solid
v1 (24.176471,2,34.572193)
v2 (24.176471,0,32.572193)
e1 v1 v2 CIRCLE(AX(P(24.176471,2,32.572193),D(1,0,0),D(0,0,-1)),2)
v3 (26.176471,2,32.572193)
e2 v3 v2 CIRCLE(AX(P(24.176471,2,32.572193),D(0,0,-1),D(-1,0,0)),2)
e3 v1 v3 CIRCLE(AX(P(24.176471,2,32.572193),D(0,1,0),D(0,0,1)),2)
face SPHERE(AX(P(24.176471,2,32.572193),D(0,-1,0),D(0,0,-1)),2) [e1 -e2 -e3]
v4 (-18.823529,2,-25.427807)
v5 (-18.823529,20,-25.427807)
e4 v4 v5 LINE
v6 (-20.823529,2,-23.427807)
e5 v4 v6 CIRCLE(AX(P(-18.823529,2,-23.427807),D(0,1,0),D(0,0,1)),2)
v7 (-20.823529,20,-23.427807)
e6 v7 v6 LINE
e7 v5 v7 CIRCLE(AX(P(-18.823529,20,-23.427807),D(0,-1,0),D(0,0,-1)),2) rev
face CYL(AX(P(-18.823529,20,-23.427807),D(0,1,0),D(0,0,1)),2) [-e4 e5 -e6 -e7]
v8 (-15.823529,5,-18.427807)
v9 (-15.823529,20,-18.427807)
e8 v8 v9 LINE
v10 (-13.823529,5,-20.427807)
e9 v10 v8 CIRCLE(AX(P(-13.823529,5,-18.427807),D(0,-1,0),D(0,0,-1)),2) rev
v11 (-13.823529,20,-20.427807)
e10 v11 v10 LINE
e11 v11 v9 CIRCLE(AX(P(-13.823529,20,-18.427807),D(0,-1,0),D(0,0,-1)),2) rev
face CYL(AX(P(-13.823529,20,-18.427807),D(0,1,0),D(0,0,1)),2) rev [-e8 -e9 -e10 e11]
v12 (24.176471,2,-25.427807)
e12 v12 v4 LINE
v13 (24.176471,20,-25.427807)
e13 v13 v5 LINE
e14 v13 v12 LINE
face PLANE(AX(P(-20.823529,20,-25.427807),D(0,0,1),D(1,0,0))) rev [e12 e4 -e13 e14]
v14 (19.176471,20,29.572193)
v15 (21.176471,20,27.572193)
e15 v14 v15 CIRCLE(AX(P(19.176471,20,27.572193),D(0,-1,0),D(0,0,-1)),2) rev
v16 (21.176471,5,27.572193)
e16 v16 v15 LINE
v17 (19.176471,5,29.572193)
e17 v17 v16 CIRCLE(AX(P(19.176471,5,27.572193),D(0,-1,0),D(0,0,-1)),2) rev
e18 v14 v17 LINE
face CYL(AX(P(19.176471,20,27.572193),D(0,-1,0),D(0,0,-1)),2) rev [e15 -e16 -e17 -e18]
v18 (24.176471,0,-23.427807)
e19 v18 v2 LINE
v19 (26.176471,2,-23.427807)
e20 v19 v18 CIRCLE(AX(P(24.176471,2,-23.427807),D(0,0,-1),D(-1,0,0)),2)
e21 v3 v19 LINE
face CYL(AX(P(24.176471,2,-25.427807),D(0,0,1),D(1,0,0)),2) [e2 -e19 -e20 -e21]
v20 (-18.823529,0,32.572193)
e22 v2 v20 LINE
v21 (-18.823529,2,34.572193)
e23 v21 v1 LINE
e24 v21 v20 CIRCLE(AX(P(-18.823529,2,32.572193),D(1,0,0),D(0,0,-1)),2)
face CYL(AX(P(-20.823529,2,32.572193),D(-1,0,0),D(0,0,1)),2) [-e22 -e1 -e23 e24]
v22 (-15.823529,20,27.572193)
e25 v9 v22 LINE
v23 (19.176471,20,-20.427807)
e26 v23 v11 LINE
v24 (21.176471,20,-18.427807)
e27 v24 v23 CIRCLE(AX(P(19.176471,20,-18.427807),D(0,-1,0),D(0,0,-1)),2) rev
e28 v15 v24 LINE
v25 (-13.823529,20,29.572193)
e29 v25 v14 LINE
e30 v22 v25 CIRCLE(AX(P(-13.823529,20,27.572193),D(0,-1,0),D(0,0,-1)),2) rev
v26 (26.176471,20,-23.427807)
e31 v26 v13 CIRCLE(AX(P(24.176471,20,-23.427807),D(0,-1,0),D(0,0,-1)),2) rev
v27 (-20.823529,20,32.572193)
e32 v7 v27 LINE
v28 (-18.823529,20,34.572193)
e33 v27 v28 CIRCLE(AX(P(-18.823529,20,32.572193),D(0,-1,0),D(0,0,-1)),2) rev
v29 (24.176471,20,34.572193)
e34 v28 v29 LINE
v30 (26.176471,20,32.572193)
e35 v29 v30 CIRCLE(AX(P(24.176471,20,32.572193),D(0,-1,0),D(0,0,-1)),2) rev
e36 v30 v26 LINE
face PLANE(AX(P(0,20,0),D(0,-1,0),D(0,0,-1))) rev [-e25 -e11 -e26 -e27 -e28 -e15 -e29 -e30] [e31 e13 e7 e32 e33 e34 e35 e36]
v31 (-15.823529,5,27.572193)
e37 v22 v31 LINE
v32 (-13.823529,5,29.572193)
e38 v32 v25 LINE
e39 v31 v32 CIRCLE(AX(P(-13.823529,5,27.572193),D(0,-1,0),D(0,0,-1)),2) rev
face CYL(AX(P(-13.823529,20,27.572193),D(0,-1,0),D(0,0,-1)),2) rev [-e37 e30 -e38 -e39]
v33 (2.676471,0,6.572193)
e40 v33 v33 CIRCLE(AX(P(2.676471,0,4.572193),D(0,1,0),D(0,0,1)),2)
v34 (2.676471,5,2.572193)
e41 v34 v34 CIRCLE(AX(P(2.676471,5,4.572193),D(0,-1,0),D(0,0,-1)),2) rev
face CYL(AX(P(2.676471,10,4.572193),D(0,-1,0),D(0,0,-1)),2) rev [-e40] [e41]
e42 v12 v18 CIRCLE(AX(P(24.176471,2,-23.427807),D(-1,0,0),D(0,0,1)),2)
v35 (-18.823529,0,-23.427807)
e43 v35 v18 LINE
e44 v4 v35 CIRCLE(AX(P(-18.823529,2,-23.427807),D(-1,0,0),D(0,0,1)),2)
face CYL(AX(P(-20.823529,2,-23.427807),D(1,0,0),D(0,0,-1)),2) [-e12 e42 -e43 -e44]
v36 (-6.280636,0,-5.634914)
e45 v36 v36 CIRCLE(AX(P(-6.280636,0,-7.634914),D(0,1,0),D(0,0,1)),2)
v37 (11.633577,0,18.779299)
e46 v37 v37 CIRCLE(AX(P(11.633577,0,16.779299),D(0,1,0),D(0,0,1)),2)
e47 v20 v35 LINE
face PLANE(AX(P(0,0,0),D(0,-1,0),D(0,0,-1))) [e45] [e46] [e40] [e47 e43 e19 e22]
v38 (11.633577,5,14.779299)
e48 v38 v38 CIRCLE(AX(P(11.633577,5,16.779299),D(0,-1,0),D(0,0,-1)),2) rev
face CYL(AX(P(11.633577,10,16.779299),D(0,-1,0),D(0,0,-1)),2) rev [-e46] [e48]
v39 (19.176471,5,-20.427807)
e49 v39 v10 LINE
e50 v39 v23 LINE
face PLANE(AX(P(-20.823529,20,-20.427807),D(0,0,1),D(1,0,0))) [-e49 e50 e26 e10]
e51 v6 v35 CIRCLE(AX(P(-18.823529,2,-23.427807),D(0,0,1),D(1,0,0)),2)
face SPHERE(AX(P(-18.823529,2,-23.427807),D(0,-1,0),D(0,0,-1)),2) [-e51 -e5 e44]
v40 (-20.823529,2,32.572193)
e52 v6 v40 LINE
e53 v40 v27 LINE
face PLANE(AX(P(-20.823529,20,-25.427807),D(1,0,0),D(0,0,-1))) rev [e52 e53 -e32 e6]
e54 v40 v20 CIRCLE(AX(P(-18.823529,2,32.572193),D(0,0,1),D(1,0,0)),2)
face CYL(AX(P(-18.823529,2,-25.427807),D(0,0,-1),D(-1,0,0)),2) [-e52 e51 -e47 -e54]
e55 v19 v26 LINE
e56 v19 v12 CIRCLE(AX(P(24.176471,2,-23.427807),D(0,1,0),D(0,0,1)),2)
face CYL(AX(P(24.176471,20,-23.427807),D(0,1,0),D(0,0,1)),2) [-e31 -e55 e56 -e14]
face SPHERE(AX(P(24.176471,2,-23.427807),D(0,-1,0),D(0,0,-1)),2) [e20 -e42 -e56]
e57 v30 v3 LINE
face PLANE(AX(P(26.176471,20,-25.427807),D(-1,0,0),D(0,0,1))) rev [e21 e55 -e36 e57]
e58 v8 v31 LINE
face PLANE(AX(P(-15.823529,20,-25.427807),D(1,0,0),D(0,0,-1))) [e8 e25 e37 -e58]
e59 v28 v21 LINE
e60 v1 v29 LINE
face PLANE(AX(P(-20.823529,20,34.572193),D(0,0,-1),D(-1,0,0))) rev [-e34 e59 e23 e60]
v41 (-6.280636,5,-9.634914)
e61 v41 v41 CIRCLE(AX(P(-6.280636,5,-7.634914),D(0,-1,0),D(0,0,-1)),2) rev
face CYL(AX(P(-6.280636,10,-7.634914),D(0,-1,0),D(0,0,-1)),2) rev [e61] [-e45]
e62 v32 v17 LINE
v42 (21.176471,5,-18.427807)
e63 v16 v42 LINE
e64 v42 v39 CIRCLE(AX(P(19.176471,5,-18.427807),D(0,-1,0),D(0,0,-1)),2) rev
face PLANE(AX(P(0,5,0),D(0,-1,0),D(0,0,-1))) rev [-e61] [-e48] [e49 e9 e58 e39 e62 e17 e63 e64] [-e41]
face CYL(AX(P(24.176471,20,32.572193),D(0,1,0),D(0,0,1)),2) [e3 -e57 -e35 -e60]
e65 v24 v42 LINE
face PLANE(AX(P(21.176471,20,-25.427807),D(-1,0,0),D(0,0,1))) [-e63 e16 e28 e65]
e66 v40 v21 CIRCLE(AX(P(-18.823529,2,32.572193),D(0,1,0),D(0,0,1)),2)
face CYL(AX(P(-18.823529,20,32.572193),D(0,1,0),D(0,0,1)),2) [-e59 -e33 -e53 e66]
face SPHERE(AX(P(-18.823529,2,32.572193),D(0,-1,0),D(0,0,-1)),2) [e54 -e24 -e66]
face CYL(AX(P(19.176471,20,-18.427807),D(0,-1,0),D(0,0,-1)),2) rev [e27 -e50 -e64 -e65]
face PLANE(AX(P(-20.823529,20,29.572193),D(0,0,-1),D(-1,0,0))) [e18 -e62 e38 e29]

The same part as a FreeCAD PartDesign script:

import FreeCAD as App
import Part
import Sketcher
from FreeCAD import Vector


def edges_at(feature, points):
    """Names of the edges that pass closest to the given points."""
    edges = feature.Shape.Edges
    near = lambda p: min(range(len(edges)), key=lambda i: edges[i].distToShape(Part.Vertex(*p))[0])
    return sorted({f"Edge{near(p) + 1}" for p in points})


def faces_at(feature, points):
    """Names of the faces that lie closest to the given points."""
    faces = feature.Shape.Faces
    near = lambda p: min(range(len(faces)), key=lambda i: faces[i].distToShape(Part.Vertex(*p))[0])
    return sorted({f"Face{near(p) + 1}" for p in points})


def add_polygon(sketch, points):
    """Adds a closed chain of lines whose ends are joined by coincident constraints."""
    first, n = sketch.GeometryCount, len(points)
    for a, b in zip(points, points[1:] + points[:1]):
        sketch.addGeometry(Part.LineSegment(App.Vector(*a, 0), App.Vector(*b, 0)), False)
    for i in range(n):
        sketch.addConstraint(Sketcher.Constraint("Coincident", first + i, 2, first + (i + 1) % n, 1))

doc = App.newDocument("Part")
body = doc.addObject("PartDesign::Body", "Body")

# Sketch on XZ plane
sketch1 = doc.addObject("Sketcher::SketchObject", "Sketch")
body.addObject(sketch1)
sketch1.AttachmentSupport = (doc.XZ_Plane, [""])
sketch1.MapMode = "FlatFace"
add_polygon(sketch1, [(-21, -25), (-21, 35), (26, 35), (26, -25)])  # lines 0-3
sketch1.addConstraint(Sketcher.Constraint("Vertical", 0))
sketch1.addConstraint(Sketcher.Constraint("Horizontal", 1))
sketch1.addConstraint(Sketcher.Constraint("Vertical", 2))
sketch1.addConstraint(Sketcher.Constraint("Horizontal", 3))
sketch1.addConstraint(Sketcher.Constraint("DistanceX", 1, 1, 1, 2, 47.0))
sketch1.addConstraint(Sketcher.Constraint("DistanceY", 0, 1, 0, 2, 60.0))
sketch1.addConstraint(Sketcher.Constraint("DistanceX", 0, 2, -1, 1, 20.823529))
sketch1.addConstraint(Sketcher.Constraint("DistanceY", -1, 1, 0, 2, 34.572193))
pad1 = doc.addObject("PartDesign::Pad", "Pad")
body.addObject(pad1)
pad1.Profile = sketch1
pad1.Length = 20
pad1.Reversed = True
doc.recompute()

thickness = doc.addObject("PartDesign::Thickness", "Thickness")
body.addObject(thickness)
thickness.Base = (pad1, faces_at(pad1, [(2.676, 20, 4.572)]))
thickness.Value = 5
thickness.Reversed = True
thickness.Join = "Intersection"
doc.recompute()

fillet = doc.addObject("PartDesign::Fillet", "Fillet")
body.addObject(fillet)
fillet.Base = (thickness, edges_at(thickness, [(21.176, 12.5, 29.572)]))
fillet.Radius = 2
doc.recompute()

fillet2 = doc.addObject("PartDesign::Fillet", "Fillet001")
body.addObject(fillet2)
fillet2.Base = (fillet, edges_at(fillet, [(-15.824, 12.5, 29.572)]))
fillet2.Radius = 2
doc.recompute()

fillet3 = doc.addObject("PartDesign::Fillet", "Fillet002")
body.addObject(fillet3)
fillet3.Base = (fillet2, edges_at(fillet2, [(-15.824, 12.5, -20.428)]))
fillet3.Radius = 2
doc.recompute()

fillet4 = doc.addObject("PartDesign::Fillet", "Fillet003")
body.addObject(fillet4)
fillet4.Base = (fillet3, edges_at(fillet3, [(21.176, 12.5, -20.428)]))
fillet4.Radius = 2
doc.recompute()

fillet5 = doc.addObject("PartDesign::Fillet", "Fillet004")
body.addObject(fillet5)
fillet5.Base = (fillet4, edges_at(fillet4, [(-20.824, 10, 34.572)]))
fillet5.Radius = 2
doc.recompute()

fillet6 = doc.addObject("PartDesign::Fillet", "Fillet005")
body.addObject(fillet6)
fillet6.Base = (fillet5, edges_at(fillet5, [(26.176, 10, 34.572)]))
fillet6.Radius = 2
doc.recompute()

fillet7 = doc.addObject("PartDesign::Fillet", "Fillet006")
body.addObject(fillet7)
fillet7.Base = (fillet6, edges_at(fillet6, [(-20.824, 10, -25.428)]))
fillet7.Radius = 2
doc.recompute()

fillet8 = doc.addObject("PartDesign::Fillet", "Fillet007")
body.addObject(fillet8)
fillet8.Base = (fillet7, edges_at(fillet7, [(26.176, 10, -25.428)]))
fillet8.Radius = 2
doc.recompute()

fillet9 = doc.addObject("PartDesign::Fillet", "Fillet008")
body.addObject(fillet9)
fillet9.Base = (fillet8, edges_at(fillet8, [
    (2.676, 0, 34.572),
    (26.176, 0, 4.572),
    (-20.824, 0, 4.572),
    (2.676, 0, -25.428),
]))
fillet9.Radius = 2

# Sketch on XZ plane
sketch2 = doc.addObject("Sketcher::SketchObject", "Sketch001")
body.addObject(sketch2)
sketch2.AttachmentSupport = (doc.XZ_Plane, [""])
sketch2.MapMode = "FlatFace"
sketch2.addGeometry(Part.Circle(Vector(-6.3, -7.6, 0), Vector(0, 0, 1), 2), False)
sketch2.addGeometry(Part.Circle(Vector(2.7, 4.6, 0), Vector(0, 0, 1), 2), False)
sketch2.addGeometry(Part.Circle(Vector(11.6, 16.8, 0), Vector(0, 0, 1), 2), False)
sketch2.addConstraint(Sketcher.Constraint("Equal", 0, 1))
sketch2.addConstraint(Sketcher.Constraint("Equal", 1, 2))
sketch2.addConstraint(Sketcher.Constraint("Diameter", 0, 4.0))
sketch2.addConstraint(Sketcher.Constraint("DistanceY", -1, 1, 2, 3, 16.779299))
sketch2.addConstraint(Sketcher.Constraint("DistanceX", -1, 1, 1, 3, 2.676471))
sketch2.addConstraint(Sketcher.Constraint("DistanceX", 0, 3, -1, 1, 6.280636))
sketch2.addConstraint(Sketcher.Constraint("DistanceY", 0, 3, -1, 1, 7.634914))
sketch2.addConstraint(Sketcher.Constraint("DistanceY", -1, 1, 1, 3, 4.572193))
sketch2.addConstraint(Sketcher.Constraint("DistanceX", -1, 1, 2, 3, 11.633577))
pocket1 = doc.addObject("PartDesign::Pocket", "Pocket")
body.addObject(pocket1)
pocket1.Profile = sketch2
pocket1.Length = 10

doc.recompute()
